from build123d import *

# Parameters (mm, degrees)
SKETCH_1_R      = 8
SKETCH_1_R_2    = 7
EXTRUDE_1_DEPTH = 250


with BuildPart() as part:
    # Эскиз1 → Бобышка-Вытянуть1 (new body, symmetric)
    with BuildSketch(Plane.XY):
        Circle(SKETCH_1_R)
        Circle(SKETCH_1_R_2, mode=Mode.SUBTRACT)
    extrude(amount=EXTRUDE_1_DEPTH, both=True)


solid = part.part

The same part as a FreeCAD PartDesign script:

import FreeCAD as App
import Part
import Sketcher
from FreeCAD import Vector
Q = App.Units.Quantity

doc = App.newDocument("Part")
body = doc.addObject("PartDesign::Body", "Body")

# Sketch on XY plane
sketch1 = body.newObject("Sketcher::SketchObject", "Sketch")
sketch1.AttachmentSupport = (doc.getObject("XY_Plane"), [""])
sketch1.MapMode = "FlatFace"
sketch1.addGeometry(Part.Circle(Vector(0, 0, 0), Vector(0, 0, 1), 8), False)
sketch1.addGeometry(Part.Circle(Vector(0, 0, 0), Vector(0, 0, 1), 7), False)
sketch1.addConstraint(Sketcher.Constraint("Coincident", 0, 3, -1, 1))
sketch1.addConstraint(Sketcher.Constraint("Coincident", 1, 3, -1, 1))
sketch1.addConstraint(Sketcher.Constraint("Diameter", 0, Q("16 mm")))
sketch1.addConstraint(Sketcher.Constraint("Diameter", 1, Q("14 mm")))
pad1 = body.newObject("PartDesign::Pad", "Pad")
pad1.Profile = sketch1
pad1.Length = 500
pad1.Midplane = True

doc.recompute()
